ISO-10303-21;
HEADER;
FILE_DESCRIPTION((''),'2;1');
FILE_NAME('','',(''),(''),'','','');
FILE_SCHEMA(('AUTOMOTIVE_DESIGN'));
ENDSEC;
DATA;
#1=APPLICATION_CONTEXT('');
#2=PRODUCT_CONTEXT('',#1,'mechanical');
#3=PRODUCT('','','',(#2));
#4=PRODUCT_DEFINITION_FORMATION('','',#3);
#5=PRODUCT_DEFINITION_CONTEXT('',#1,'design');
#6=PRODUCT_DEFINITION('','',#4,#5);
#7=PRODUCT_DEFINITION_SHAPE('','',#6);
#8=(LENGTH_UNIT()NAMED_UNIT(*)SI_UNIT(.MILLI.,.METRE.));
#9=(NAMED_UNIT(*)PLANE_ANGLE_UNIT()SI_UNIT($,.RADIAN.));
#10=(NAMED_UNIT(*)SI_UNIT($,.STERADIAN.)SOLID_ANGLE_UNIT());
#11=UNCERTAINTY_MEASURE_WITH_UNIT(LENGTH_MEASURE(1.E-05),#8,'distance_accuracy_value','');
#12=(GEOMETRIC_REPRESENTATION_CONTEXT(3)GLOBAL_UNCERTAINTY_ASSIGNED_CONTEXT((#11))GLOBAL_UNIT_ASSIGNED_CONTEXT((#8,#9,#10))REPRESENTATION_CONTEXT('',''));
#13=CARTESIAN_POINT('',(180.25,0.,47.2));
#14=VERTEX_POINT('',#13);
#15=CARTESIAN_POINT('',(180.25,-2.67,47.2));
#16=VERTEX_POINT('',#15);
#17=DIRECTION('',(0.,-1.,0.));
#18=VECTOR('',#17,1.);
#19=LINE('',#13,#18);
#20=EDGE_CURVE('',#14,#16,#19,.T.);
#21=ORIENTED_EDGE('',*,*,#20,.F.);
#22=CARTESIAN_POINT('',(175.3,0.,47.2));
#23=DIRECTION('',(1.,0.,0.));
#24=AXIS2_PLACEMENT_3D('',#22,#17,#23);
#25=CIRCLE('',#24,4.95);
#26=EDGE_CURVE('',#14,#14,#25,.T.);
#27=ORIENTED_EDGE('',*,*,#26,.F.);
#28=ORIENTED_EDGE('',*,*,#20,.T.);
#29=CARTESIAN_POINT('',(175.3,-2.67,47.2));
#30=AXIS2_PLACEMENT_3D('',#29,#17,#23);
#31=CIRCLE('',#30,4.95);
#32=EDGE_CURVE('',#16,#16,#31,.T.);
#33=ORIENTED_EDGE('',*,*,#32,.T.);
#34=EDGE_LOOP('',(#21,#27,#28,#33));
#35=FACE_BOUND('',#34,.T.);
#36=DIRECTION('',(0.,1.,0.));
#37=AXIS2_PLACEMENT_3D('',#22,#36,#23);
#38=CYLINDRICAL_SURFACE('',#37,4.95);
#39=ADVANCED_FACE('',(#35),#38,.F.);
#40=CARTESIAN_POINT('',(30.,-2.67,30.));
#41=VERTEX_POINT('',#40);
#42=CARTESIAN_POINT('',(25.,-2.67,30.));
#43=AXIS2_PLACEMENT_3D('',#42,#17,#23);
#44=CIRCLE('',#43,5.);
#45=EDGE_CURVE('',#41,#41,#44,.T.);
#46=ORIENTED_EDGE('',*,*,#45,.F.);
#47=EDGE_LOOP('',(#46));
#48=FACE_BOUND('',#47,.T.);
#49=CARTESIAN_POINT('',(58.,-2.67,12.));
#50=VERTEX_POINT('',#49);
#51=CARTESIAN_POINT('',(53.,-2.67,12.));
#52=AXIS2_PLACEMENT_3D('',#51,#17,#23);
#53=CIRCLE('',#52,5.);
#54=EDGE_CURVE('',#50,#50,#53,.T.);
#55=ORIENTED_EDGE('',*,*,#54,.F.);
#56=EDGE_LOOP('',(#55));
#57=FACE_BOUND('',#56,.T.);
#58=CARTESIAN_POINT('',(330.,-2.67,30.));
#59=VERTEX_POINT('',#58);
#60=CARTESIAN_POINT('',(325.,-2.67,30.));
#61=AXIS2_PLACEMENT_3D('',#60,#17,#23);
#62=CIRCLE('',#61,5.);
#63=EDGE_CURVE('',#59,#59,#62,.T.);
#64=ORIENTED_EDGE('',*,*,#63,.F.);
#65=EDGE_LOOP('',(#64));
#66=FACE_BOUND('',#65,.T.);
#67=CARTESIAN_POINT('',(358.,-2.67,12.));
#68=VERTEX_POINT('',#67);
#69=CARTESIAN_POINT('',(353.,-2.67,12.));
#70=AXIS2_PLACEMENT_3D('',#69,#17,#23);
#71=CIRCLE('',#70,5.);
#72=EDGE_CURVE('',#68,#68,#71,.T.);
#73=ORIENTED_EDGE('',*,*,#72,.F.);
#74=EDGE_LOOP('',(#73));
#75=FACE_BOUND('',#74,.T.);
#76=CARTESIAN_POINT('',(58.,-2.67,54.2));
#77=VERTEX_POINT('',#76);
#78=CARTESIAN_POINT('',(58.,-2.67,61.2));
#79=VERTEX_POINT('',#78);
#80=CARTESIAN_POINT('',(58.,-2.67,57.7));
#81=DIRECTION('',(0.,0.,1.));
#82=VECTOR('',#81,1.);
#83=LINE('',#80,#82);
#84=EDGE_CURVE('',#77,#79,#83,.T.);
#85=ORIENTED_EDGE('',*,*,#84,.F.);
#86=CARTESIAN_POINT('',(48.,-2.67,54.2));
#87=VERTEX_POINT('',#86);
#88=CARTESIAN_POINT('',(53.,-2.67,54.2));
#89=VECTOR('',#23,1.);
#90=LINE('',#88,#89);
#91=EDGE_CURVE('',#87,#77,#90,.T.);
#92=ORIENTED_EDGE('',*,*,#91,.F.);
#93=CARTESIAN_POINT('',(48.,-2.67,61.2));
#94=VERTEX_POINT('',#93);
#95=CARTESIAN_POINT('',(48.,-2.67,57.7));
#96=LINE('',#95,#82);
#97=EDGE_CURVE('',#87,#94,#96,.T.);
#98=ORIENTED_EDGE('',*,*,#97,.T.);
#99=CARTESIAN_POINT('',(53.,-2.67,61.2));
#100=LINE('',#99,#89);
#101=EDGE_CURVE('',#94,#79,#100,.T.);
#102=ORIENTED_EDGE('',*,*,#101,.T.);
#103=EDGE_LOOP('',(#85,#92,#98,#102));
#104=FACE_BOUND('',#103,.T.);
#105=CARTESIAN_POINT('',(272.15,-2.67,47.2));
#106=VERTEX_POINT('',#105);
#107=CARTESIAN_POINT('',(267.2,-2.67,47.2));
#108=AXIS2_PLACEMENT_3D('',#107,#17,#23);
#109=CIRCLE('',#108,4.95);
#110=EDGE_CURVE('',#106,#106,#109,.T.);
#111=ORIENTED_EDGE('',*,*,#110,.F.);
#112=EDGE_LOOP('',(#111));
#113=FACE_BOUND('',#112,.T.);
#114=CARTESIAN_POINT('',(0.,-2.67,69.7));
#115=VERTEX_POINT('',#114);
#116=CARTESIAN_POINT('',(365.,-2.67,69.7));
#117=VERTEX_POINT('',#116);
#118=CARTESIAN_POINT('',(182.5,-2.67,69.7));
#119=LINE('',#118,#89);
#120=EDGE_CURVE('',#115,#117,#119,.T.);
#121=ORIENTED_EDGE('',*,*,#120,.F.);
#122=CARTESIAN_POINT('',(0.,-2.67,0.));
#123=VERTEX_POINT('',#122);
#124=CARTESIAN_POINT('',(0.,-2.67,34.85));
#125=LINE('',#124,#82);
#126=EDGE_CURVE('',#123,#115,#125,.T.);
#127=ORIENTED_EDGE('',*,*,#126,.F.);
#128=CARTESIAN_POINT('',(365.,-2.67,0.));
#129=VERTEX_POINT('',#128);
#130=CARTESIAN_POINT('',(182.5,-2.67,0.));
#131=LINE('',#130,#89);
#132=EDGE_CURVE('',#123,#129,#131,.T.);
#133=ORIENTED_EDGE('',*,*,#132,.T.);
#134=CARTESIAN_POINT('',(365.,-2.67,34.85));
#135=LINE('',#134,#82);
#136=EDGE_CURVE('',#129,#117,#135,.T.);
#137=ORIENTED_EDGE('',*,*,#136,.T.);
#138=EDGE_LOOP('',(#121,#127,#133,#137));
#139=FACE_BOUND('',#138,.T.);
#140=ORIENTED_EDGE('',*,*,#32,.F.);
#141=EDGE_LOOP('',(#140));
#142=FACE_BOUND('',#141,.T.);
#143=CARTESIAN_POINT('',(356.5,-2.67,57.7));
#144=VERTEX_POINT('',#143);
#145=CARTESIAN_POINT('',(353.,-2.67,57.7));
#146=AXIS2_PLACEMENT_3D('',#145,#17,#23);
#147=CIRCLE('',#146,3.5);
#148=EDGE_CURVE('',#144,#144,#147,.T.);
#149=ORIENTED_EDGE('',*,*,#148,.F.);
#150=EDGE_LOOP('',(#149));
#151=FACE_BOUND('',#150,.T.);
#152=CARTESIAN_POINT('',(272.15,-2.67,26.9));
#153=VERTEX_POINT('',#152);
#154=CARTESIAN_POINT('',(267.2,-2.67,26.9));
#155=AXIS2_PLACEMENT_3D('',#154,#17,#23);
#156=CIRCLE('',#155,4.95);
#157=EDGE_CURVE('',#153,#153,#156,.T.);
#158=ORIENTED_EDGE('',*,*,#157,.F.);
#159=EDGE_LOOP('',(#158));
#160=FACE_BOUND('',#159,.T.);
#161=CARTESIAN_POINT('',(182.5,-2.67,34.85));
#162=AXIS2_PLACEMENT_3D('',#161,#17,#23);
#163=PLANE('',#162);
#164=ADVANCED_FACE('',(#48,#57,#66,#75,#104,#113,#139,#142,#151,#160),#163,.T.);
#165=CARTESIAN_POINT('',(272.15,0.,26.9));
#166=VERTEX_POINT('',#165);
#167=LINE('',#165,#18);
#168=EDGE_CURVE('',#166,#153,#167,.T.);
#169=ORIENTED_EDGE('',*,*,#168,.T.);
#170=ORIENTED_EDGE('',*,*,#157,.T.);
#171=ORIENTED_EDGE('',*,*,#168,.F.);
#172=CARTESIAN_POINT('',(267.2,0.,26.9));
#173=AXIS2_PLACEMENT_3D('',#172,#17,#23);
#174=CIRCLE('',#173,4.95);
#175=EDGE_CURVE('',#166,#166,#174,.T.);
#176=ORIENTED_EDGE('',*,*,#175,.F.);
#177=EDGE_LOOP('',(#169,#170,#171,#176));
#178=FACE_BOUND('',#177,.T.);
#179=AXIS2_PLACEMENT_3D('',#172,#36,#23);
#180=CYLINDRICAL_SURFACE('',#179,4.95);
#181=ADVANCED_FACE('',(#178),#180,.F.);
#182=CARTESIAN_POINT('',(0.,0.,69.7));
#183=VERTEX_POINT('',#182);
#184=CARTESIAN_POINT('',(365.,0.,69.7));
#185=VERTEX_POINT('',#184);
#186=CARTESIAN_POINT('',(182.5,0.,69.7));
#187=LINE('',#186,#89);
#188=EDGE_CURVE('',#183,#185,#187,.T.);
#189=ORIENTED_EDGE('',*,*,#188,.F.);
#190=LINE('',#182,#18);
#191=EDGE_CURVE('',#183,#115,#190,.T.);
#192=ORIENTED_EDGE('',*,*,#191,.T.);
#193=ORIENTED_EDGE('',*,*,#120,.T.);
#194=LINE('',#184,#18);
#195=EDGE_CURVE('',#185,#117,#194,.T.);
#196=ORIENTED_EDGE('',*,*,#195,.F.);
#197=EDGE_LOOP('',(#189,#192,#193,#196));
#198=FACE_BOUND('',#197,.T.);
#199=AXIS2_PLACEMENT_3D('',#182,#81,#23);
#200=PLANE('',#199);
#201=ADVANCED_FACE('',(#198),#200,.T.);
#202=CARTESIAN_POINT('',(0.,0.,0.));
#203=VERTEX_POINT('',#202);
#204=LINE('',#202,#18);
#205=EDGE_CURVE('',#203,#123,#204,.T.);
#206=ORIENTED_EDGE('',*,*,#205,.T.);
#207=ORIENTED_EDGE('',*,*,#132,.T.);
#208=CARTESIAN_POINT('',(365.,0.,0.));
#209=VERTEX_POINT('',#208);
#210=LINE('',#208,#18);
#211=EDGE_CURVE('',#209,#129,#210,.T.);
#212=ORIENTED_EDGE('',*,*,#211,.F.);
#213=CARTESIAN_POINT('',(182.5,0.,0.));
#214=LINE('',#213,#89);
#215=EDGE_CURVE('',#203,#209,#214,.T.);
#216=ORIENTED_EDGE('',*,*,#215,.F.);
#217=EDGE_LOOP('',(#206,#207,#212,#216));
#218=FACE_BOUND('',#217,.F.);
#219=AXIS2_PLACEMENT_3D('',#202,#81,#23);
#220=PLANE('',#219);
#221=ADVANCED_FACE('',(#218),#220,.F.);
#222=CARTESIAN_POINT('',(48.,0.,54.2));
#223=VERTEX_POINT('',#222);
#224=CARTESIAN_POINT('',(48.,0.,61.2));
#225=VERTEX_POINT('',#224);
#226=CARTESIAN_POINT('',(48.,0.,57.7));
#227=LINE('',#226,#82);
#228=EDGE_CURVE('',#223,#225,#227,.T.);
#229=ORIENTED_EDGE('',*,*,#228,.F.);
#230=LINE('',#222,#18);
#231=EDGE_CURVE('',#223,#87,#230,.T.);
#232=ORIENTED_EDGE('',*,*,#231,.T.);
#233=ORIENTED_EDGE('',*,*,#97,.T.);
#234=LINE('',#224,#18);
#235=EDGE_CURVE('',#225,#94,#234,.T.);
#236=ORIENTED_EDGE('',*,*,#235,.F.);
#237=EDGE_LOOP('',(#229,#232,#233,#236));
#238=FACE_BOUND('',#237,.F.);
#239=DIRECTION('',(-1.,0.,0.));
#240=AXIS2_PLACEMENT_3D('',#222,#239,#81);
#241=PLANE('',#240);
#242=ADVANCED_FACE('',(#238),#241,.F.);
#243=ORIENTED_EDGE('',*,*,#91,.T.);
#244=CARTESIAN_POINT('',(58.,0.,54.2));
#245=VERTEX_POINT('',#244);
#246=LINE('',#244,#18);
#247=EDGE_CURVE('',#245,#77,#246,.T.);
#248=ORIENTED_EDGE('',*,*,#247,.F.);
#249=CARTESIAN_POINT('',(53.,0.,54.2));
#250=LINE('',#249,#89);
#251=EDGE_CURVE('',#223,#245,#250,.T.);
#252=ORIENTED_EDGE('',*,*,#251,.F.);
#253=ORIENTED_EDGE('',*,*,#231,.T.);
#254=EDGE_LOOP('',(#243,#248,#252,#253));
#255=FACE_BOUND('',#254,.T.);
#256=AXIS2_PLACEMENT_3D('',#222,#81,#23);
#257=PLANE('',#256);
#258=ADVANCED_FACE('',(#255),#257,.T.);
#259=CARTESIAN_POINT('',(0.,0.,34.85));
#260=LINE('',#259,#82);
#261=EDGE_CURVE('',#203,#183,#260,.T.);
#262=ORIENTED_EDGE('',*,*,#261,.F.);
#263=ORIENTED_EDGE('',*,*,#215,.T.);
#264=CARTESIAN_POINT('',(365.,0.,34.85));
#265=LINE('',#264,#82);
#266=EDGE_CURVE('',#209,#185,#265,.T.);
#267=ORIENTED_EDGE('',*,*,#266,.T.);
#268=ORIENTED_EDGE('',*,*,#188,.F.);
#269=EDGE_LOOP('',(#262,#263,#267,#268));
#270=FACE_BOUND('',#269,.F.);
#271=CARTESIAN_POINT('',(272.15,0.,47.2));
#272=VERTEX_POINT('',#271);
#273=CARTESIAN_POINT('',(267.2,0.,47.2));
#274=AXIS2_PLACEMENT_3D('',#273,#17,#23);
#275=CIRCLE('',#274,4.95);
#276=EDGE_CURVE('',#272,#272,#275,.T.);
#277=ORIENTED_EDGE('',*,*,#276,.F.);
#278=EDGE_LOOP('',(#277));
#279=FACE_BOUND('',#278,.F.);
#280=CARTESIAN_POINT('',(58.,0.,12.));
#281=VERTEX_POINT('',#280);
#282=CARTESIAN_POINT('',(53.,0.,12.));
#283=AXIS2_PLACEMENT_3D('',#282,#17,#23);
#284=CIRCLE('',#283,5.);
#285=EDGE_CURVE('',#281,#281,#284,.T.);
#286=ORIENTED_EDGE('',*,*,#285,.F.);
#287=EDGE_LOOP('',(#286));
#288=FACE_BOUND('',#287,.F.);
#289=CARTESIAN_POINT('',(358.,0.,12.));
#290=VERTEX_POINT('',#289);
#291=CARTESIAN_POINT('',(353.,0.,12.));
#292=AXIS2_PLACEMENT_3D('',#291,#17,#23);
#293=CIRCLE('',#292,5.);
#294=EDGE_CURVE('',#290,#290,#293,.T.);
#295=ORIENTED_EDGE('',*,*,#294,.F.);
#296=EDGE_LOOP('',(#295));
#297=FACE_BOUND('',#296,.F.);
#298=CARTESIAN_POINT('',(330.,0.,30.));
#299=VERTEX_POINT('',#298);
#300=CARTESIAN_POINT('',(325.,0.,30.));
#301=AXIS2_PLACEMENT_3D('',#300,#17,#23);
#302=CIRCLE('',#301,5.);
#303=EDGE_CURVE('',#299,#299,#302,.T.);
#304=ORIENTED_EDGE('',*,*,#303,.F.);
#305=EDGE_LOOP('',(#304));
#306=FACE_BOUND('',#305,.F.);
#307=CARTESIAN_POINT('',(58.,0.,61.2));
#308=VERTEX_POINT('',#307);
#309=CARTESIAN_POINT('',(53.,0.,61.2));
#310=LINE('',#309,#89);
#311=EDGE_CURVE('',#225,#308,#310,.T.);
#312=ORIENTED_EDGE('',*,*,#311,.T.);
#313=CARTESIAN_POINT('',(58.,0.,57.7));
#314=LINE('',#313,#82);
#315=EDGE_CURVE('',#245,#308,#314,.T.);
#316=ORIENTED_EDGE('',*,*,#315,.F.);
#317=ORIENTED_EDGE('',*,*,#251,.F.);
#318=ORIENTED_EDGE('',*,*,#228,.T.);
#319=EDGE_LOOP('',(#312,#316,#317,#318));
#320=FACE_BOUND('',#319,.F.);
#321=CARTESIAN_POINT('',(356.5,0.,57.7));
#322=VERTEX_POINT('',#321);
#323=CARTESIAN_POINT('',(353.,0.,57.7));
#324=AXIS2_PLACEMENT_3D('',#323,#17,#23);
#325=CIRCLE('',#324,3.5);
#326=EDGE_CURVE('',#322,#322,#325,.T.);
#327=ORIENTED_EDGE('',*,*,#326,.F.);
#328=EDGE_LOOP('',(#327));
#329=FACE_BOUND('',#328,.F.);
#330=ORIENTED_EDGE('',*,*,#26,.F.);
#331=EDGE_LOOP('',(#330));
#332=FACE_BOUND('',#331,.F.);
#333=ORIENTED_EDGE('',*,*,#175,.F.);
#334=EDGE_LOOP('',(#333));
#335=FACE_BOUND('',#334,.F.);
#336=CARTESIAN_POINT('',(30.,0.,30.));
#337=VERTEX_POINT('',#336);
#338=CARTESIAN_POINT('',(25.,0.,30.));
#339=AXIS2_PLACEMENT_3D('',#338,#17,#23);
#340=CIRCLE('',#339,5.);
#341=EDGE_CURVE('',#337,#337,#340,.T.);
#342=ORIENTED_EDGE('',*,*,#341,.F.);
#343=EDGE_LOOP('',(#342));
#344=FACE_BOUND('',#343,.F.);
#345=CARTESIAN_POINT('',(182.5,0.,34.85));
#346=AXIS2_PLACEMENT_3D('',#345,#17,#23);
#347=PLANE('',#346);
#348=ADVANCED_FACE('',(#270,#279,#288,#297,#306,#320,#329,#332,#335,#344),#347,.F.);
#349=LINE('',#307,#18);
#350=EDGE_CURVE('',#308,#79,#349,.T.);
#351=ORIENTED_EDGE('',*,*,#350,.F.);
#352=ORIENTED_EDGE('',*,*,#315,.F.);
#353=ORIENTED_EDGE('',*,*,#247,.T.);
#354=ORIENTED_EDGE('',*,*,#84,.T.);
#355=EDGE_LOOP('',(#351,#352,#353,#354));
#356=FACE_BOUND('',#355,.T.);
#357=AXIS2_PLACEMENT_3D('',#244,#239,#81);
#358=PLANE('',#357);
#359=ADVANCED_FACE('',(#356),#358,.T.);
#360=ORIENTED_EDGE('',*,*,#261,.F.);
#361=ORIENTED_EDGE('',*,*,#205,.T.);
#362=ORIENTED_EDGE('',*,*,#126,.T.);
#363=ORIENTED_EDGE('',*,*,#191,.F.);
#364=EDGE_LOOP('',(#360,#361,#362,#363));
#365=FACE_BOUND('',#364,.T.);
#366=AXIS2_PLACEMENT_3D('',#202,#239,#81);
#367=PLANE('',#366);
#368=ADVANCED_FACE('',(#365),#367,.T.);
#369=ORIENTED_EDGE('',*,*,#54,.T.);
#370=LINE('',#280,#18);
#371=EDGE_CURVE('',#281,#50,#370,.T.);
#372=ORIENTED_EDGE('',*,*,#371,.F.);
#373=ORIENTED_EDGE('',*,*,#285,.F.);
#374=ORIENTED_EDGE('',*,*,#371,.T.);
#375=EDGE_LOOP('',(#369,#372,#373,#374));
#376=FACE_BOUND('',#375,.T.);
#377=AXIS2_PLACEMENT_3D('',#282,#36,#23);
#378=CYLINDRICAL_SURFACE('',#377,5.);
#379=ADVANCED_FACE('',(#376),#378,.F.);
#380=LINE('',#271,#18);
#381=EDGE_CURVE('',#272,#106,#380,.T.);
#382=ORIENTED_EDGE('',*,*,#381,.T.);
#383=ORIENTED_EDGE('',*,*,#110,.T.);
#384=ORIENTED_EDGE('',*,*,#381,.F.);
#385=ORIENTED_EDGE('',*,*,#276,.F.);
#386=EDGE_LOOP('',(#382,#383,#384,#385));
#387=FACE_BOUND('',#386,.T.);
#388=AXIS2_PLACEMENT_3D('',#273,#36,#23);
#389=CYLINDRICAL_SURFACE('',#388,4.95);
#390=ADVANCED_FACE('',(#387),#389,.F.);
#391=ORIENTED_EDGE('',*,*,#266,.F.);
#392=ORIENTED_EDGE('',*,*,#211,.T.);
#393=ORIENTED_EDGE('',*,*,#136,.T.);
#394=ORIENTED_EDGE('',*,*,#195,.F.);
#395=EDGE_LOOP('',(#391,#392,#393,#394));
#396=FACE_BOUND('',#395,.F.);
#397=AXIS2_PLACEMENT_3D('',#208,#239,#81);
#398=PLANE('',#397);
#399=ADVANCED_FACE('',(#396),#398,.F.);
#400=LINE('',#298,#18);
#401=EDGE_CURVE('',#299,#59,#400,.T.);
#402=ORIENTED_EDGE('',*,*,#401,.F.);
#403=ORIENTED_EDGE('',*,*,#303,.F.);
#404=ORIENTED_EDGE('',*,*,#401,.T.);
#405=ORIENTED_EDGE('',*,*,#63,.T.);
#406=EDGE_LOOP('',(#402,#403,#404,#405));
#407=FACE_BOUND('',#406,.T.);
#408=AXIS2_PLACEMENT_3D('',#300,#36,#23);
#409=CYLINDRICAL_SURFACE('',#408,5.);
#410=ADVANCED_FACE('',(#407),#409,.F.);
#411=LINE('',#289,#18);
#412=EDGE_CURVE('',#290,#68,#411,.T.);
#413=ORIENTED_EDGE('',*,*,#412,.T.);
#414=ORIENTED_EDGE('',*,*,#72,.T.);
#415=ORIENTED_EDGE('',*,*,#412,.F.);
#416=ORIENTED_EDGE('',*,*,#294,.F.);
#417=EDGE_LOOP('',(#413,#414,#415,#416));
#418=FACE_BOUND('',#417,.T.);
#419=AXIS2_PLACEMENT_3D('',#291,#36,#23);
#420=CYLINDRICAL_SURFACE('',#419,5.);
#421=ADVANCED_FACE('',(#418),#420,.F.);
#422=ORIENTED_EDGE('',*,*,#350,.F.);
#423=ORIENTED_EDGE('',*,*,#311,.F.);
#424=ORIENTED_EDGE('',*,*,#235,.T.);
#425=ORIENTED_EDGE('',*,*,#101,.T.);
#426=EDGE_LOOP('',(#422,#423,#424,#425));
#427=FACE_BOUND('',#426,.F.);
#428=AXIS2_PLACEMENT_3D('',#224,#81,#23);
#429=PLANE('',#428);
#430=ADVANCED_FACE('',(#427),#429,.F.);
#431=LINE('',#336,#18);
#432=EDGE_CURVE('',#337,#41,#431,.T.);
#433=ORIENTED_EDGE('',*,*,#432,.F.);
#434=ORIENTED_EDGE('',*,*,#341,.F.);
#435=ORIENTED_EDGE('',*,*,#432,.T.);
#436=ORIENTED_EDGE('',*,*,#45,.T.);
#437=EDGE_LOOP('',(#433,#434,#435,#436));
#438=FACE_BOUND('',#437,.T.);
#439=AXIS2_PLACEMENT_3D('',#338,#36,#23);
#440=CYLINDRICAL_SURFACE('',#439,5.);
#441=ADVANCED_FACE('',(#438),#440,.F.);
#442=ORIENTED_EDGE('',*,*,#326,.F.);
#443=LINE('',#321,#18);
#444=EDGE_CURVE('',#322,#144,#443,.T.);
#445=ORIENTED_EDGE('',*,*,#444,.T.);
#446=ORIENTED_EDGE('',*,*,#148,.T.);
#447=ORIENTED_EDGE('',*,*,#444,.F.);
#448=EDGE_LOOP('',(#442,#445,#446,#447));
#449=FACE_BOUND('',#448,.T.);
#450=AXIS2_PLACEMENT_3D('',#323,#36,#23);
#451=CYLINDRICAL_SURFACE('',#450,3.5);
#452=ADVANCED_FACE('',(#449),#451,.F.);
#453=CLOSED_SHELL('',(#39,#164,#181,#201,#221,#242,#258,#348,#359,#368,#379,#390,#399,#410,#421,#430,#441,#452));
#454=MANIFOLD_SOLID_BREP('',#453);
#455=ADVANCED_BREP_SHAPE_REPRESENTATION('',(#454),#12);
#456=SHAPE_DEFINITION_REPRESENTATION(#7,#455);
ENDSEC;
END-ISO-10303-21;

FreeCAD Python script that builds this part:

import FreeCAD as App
import Part
import Sketcher
Q = App.Units.Quantity

doc = App.newDocument("Part")
body = doc.addObject("PartDesign::Body", "Body")

# Sketch on XZ plane
sketch1 = doc.addObject("Sketcher::SketchObject", "Sketch")
body.addObject(sketch1)
sketch1.AttachmentSupport = (doc.XZ_Plane, [""])
sketch1.MapMode = "FlatFace"
sketch1.addGeometry(Part.LineSegment(App.Vector(0, 69.7, 0), App.Vector(0, 0, 0)), False)
sketch1.addGeometry(Part.LineSegment(App.Vector(0, 0, 0), App.Vector(365, 0, 0)), False)
sketch1.addGeometry(Part.LineSegment(App.Vector(365, 0, 0), App.Vector(365, 69.7, 0)), False)
sketch1.addGeometry(Part.LineSegment(App.Vector(365, 69.7, 0), App.Vector(0, 69.7, 0)), False)
sketch1.addGeometry(Part.Circle(App.Vector(53, 12, 0), App.Vector(0, 0, 1), 5), False)
sketch1.addGeometry(Part.Circle(App.Vector(25, 30, 0), App.Vector(0, 0, 1), 5), False)
sketch1.addGeometry(Part.Circle(App.Vector(353, 12, 0), App.Vector(0, 0, 1), 5), False)
sketch1.addGeometry(Part.Circle(App.Vector(267.2, 26.9, 0), App.Vector(0, 0, 1), 5), False)
sketch1.addGeometry(Part.Circle(App.Vector(325, 30, 0), App.Vector(0, 0, 1), 5), False)
sketch1.addGeometry(Part.Circle(App.Vector(175.3, 47.2, 0), App.Vector(0, 0, 1), 5), False)
sketch1.addGeometry(Part.LineSegment(App.Vector(58, 54.2, 0), App.Vector(48, 54.2, 0)), False)
sketch1.addGeometry(Part.LineSegment(App.Vector(48, 54.2, 0), App.Vector(48, 61.2, 0)), False)
sketch1.addGeometry(Part.LineSegment(App.Vector(48, 61.2, 0), App.Vector(58, 61.2, 0)), False)
sketch1.addGeometry(Part.LineSegment(App.Vector(58, 61.2, 0), App.Vector(58, 54.2, 0)), False)
sketch1.addGeometry(Part.Circle(App.Vector(267.2, 47.2, 0), App.Vector(0, 0, 1), 5), False)
sketch1.addGeometry(Part.Circle(App.Vector(353, 57.7, 0), App.Vector(0, 0, 1), 3.5), False)
sketch1.addConstraint(Sketcher.Constraint("Coincident", 0, 2, 1, 1))
sketch1.addConstraint(Sketcher.Constraint("Coincident", 1, 2, 2, 1))
sketch1.addConstraint(Sketcher.Constraint("Coincident", 2, 2, 3, 1))
sketch1.addConstraint(Sketcher.Constraint("Coincident", 3, 2, 0, 1))
sketch1.addConstraint(Sketcher.Constraint("Coincident", 10, 2, 11, 1))
sketch1.addConstraint(Sketcher.Constraint("Coincident", 11, 2, 12, 1))
sketch1.addConstraint(Sketcher.Constraint("Coincident", 12, 2, 13, 1))
sketch1.addConstraint(Sketcher.Constraint("Coincident", 13, 2, 10, 1))
sketch1.addConstraint(Sketcher.Constraint("Vertical", 0))
sketch1.addConstraint(Sketcher.Constraint("Horizontal", 1))
sketch1.addConstraint(Sketcher.Constraint("Vertical", 2))
sketch1.addConstraint(Sketcher.Constraint("Horizontal", 3))
sketch1.addConstraint(Sketcher.Constraint("Horizontal", 10))
sketch1.addConstraint(Sketcher.Constraint("Vertical", 11))
sketch1.addConstraint(Sketcher.Constraint("Horizontal", 12))
sketch1.addConstraint(Sketcher.Constraint("Vertical", 13))
sketch1.addConstraint(Sketcher.Constraint("Coincident", 0, 2, -1, 1))
sketch1.addConstraint(Sketcher.Constraint("Equal", 4, 5))
sketch1.addConstraint(Sketcher.Constraint("Equal", 5, 6))
sketch1.addConstraint(Sketcher.Constraint("Equal", 6, 8))
sketch1.addConstraint(Sketcher.Constraint("Equal", 7, 9))
sketch1.addConstraint(Sketcher.Constraint("Equal", 9, 14))
sketch1.addConstraint(Sketcher.Constraint("Horizontal", 4, 3, 6, 3))
sketch1.addConstraint(Sketcher.Constraint("Horizontal", 5, 3, 8, 3))
sketch1.addConstraint(Sketcher.Constraint("Horizontal", 9, 3, 14, 3))
sketch1.addConstraint(Sketcher.Constraint("Vertical", 7, 3, 14, 3))
sketch1.addConstraint(Sketcher.Constraint("Vertical", 6, 3, 15, 3))
sketch1.addConstraint(Sketcher.Constraint("Diameter", 4, Q("10 mm")))
sketch1.addConstraint(Sketcher.Constraint("Diameter", 15, Q("7 mm")))
sketch1.addConstraint(Sketcher.Constraint("Diameter", 7, Q("9.9 mm")))
sketch1.addConstraint(Sketcher.Constraint("DistanceX", 1, 1, 1, 2, Q("365 mm")))
sketch1.addConstraint(Sketcher.Constraint("DistanceX", 10, 2, 10, 1, Q("10 mm")))
sketch1.addConstraint(Sketcher.Constraint("DistanceY", 11, 1, 11, 2, Q("7 mm")))
sketch1.addConstraint(Sketcher.Constraint("DistanceY", 0, 2, 0, 1, Q("69.7 mm")))
sketch1.addConstraint(Sketcher.Constraint("DistanceX", -1, 1, 4, 3, Q("53 mm")))
sketch1.addConstraint(Sketcher.Constraint("DistanceY", -1, 1, 4, 3, Q("12 mm")))
sketch1.addConstraint(Sketcher.Constraint("DistanceX", -1, 1, 5, 3, Q("25 mm")))
sketch1.addConstraint(Sketcher.Constraint("DistanceY", -1, 1, 5, 3, Q("30 mm")))
sketch1.addConstraint(Sketcher.Constraint("DistanceX", -1, 1, 6, 3, Q("353 mm")))
sketch1.addConstraint(Sketcher.Constraint("DistanceX", -1, 1, 8, 3, Q("325 mm")))
sketch1.addConstraint(Sketcher.Constraint("DistanceX", -1, 1, 10, 2, Q("48 mm")))
sketch1.addConstraint(Sketcher.Constraint("DistanceY", 15, 3, 2, 2, Q("12 mm")))
sketch1.addConstraint(Sketcher.Constraint("DistanceY", 9, 3, 10, 2, Q("7 mm")))
sketch1.addConstraint(Sketcher.Constraint("DistanceX", -1, 1, 7, 3, Q("267.2 mm")))
sketch1.addConstraint(Sketcher.Constraint("DistanceY", -1, 1, 7, 3, Q("26.9 mm")))
sketch1.addConstraint(Sketcher.Constraint("DistanceX", -1, 1, 9, 3, Q("175.3 mm")))
sketch1.addConstraint(Sketcher.Constraint("DistanceY", -1, 1, 9, 3, Q("47.2 mm")))
pad1 = doc.addObject("PartDesign::Pad", "Pad")
body.addObject(pad1)
pad1.Profile = sketch1
pad1.Length = 2.67

doc.recompute()
